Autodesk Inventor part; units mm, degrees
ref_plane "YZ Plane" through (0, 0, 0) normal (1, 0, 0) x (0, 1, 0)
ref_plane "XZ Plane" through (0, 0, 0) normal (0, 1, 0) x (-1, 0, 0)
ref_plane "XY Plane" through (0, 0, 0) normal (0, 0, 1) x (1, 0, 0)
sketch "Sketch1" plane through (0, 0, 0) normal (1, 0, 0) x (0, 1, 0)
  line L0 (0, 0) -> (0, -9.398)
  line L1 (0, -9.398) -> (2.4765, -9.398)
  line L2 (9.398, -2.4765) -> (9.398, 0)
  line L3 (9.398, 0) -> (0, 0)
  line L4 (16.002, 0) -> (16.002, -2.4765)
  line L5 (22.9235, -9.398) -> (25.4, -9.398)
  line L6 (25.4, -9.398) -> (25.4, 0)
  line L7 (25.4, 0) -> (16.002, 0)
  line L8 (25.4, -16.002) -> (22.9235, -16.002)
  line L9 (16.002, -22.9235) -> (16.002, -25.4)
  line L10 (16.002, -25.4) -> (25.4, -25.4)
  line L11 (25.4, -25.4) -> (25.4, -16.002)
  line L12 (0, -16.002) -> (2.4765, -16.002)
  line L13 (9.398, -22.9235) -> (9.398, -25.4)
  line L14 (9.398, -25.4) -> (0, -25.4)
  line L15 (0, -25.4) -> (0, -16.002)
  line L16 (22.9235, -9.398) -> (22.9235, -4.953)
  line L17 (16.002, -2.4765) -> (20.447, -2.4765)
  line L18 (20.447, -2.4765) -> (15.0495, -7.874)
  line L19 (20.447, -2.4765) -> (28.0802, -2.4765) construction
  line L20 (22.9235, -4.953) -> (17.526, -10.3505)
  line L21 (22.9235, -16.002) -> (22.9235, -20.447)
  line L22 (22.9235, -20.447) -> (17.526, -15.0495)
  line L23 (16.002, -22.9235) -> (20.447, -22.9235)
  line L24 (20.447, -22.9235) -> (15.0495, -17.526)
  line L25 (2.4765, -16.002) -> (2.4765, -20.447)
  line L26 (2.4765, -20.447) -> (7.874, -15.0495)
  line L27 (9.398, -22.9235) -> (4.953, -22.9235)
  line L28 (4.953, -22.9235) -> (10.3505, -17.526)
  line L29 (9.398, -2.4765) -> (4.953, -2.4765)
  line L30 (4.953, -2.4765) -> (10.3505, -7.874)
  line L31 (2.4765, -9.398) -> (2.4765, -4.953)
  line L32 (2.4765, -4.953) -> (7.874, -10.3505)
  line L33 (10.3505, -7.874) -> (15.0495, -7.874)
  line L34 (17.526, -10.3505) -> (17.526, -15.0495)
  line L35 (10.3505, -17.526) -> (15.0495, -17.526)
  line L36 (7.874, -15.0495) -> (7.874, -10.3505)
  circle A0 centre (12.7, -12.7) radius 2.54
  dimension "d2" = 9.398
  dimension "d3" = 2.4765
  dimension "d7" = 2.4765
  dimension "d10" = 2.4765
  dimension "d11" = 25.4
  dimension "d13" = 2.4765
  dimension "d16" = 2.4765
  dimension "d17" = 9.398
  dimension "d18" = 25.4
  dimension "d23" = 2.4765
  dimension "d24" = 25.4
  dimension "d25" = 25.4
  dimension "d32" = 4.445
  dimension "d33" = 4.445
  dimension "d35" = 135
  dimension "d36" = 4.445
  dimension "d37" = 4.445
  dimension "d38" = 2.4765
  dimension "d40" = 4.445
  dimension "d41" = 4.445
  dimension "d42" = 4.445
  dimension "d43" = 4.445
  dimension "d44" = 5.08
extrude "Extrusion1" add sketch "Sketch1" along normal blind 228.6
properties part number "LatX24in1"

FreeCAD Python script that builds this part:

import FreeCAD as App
import Part
import Sketcher

V = App.Vector
Q = App.Units.Quantity


def add_polygon(sketch, points):
    """Adds a closed chain of lines whose ends are joined by coincident constraints."""
    first, n = sketch.GeometryCount, len(points)
    for a, b in zip(points, points[1:] + points[:1]):
        sketch.addGeometry(Part.LineSegment(App.Vector(*a, 0), App.Vector(*b, 0)), False)
    for i in range(n):
        sketch.addConstraint(Sketcher.Constraint("Coincident", first + i, 2, first + (i + 1) % n, 1))

doc = App.newDocument("Part")
body = doc.addObject("PartDesign::Body", "Body")

# Sketch on YZ plane
sketch1 = body.newObject("Sketcher::SketchObject", "Sketch")
sketch1.AttachmentSupport = (doc.getObject("YZ_Plane"), [""])
sketch1.MapMode = "FlatFace"
add_polygon(sketch1, [(9.398, 0), (0, 0), (0, -9.398), (2.4765, -9.398), (2.4765, -4.953), (7.874, -10.3505), (7.874, -15.0495), (2.4765, -20.447), (2.4765, -16.002), (0, -16.002), (0, -25.4), (9.398, -25.4), (9.398, -22.9235), (4.953, -22.9235), (10.3505, -17.526), (15.0495, -17.526), (20.447, -22.9235), (16.002, -22.9235), (16.002, -25.4), (25.4, -25.4), (25.4, -16.002), (22.9235, -16.002), (22.9235, -20.447), (17.526, -15.0495), (17.526, -10.3505), (22.9235, -4.953), (22.9235, -9.398), (25.4, -9.398), (25.4, 0), (16.002, 0), (16.002, -2.4765), (20.447, -2.4765), (15.0495, -7.874), (10.3505, -7.874), (4.953, -2.4765), (9.398, -2.4765)])  # lines 0-35
sketch1.addGeometry(Part.Circle(V(12.7, -12.7, 0), V(0, 0, 1), 2.54), False)  # 36
sketch1.addConstraint([
    Sketcher.Constraint("Horizontal", 0),
    Sketcher.Constraint("Vertical", 1),
    Sketcher.Constraint("Horizontal", 2),
    Sketcher.Constraint("Vertical", 3),
    Sketcher.Constraint("Vertical", 5),
    Sketcher.Constraint("Vertical", 7),
    Sketcher.Constraint("Horizontal", 8),
    Sketcher.Constraint("Vertical", 9),
    Sketcher.Constraint("Horizontal", 10),
    Sketcher.Constraint("Vertical", 11),
    Sketcher.Constraint("Horizontal", 12),
    Sketcher.Constraint("Horizontal", 14),
    Sketcher.Constraint("Horizontal", 16),
    Sketcher.Constraint("Vertical", 17),
    Sketcher.Constraint("Horizontal", 18),
    Sketcher.Constraint("Vertical", 19),
    Sketcher.Constraint("Horizontal", 20),
    Sketcher.Constraint("Vertical", 21),
    Sketcher.Constraint("Vertical", 23),
    Sketcher.Constraint("Vertical", 25),
    Sketcher.Constraint("Horizontal", 26),
    Sketcher.Constraint("Vertical", 27),
    Sketcher.Constraint("Horizontal", 28),
    Sketcher.Constraint("Vertical", 29),
    Sketcher.Constraint("Horizontal", 30),
    Sketcher.Constraint("Horizontal", 32),
    Sketcher.Constraint("Horizontal", 34),
    Sketcher.Constraint("Vertical", 35),
    Sketcher.Constraint("Coincident", 0, 2, -1, 1),
    Sketcher.Constraint("PointOnObject", 8, 2, -2),
    Sketcher.Constraint("PointOnObject", 27, 2, -1),
    Sketcher.Constraint("Perpendicular", 4, 6),
    Sketcher.Constraint("Parallel", 6, 13),
    Sketcher.Constraint("Perpendicular", 13, 15),
    Sketcher.Constraint("Parallel", 15, 22),
    Sketcher.Constraint("Perpendicular", 22, 24),
    Sketcher.Constraint("Parallel", 24, 31),
    Sketcher.Constraint("Perpendicular", 31, 33),
    Sketcher.Constraint("Horizontal", 12, 2, 15, 2),
    Sketcher.Constraint("Horizontal", 10, 2, 17, 2),
    Sketcher.Constraint("Horizontal", 8, 2, 19, 2),
    Sketcher.Constraint("Horizontal", 6, 2, 21, 2),
    Sketcher.Constraint("Horizontal", 5, 2, 22, 2),
    Sketcher.Constraint("Horizontal", 4, 2, 23, 2),
    Sketcher.Constraint("Horizontal", 3, 2, 24, 2),
    Sketcher.Constraint("Horizontal", 2, 2, 25, 2),
    Sketcher.Constraint("Horizontal", 30, 2, 33, 2),
    Sketcher.Constraint("Vertical", 3, 2, 6, 2),
    Sketcher.Constraint("Vertical", 21, 2, 24, 2),
    Sketcher.Constraint("Vertical", 19, 2, 26, 2),
    Sketcher.Constraint("Vertical", 17, 2, 28, 2),
    Sketcher.Constraint("Vertical", 15, 2, 30, 2),
    Sketcher.Constraint("Vertical", 14, 2, 31, 2),
    Sketcher.Constraint("Vertical", 13, 2, 32, 2),
    Sketcher.Constraint("Vertical", 11, 2, 34, 2),
    Sketcher.Constraint("Equal", 12, 16),
    Sketcher.Constraint("Equal", 10, 18),
    Sketcher.Constraint("Equal", 8, 20),
    Sketcher.Constraint("Equal", 28, 1),
    Sketcher.Constraint("Equal", 34, 3),
    Sketcher.Constraint("Equal", 32, 5),
    Sketcher.Constraint("Equal", 3, 7),
    Sketcher.Constraint("Equal", 1, 9),
    Sketcher.Constraint("Equal", 26, 11),
    Sketcher.Constraint("Equal", 17, 29),
    Sketcher.Constraint("Equal", 6, 13),
    Sketcher.Constraint("Diameter", 36, Q("0.2 in")),
    Sketcher.Constraint("DistanceY", 9, 2, -1, 1, Q("1 in")),
    Sketcher.Constraint("DistanceX", 0, 2, 0, 1, Q("0.37 in")),
    Sketcher.Constraint("DistanceX", 12, 2, 12, 1, Q("0.175 in")),
    Sketcher.Constraint("DistanceX", 2, 1, 2, 2, Q("0.0975 in")),
    Sketcher.Constraint("DistanceX", -1, 1, 36, 3, Q("0.5 in")),
    Sketcher.Constraint("DistanceY", 36, 3, -1, 1, Q("0.5 in")),
    Sketcher.Constraint("DistanceX", 14, 1, 14, 2, Q("0.185 in")),
])
pad1 = body.newObject("PartDesign::Pad", "Pad")
pad1.Profile = sketch1
pad1.Length = Q("9 in")

doc.recompute()
